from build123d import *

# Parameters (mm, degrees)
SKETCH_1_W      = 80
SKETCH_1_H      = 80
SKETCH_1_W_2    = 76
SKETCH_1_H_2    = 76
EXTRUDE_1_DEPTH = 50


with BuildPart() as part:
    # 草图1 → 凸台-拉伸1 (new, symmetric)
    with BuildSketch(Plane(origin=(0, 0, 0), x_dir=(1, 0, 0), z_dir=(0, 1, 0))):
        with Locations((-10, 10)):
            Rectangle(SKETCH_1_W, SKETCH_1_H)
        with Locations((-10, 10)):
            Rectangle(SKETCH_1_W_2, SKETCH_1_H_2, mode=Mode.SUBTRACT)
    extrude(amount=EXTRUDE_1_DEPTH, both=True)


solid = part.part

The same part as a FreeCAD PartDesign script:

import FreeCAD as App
import Part
import Sketcher

V = App.Vector
Q = App.Units.Quantity

doc = App.newDocument("Part")
params = doc.addObject("Spreadsheet::Sheet", "Params")
for row, (alias, value) in enumerate([
    ("sketch1_width", "80 mm"),
    ("sketch1_width2", "76 mm"),
    ("pad1_length", "100 mm"),
], start=1):
    params.set(f"A{row}", alias)
    params.set(f"B{row}", "=" + value)
    params.setAlias(f"B{row}", alias)

body = doc.addObject("PartDesign::Body", "Body")

# Sketch on XZ plane
sketch1 = body.newObject("Sketcher::SketchObject", "Sketch")
sketch1.AttachmentSupport = (doc.getObject("XZ_Plane"), [""])
sketch1.MapMode = "FlatFace"
sketch1.addGeometry([
    Part.LineSegment(V(-50, -50, 0), V(-50, 30, 0)),  # 0
    Part.LineSegment(V(-50, 30, 0), V(30, 30, 0)),  # 1
    Part.LineSegment(V(30, 30, 0), V(30, -50, 0)),  # 2
    Part.LineSegment(V(30, -50, 0), V(-50, -50, 0)),  # 3
    Part.LineSegment(V(28, 28, 0), V(-48, 28, 0)),  # 4
    Part.LineSegment(V(-48, 28, 0), V(-48, -48, 0)),  # 5
    Part.LineSegment(V(-48, -48, 0), V(28, -48, 0)),  # 6
    Part.LineSegment(V(28, -48, 0), V(28, 28, 0)),  # 7
], False)
sketch1.addConstraint([
    Sketcher.Constraint("Coincident", 0, 2, 1, 1),
    Sketcher.Constraint("Coincident", 1, 2, 2, 1),
    Sketcher.Constraint("Coincident", 2, 2, 3, 1),
    Sketcher.Constraint("Coincident", 3, 2, 0, 1),
    Sketcher.Constraint("Coincident", 4, 2, 5, 1),
    Sketcher.Constraint("Coincident", 5, 2, 6, 1),
    Sketcher.Constraint("Coincident", 6, 2, 7, 1),
    Sketcher.Constraint("Coincident", 7, 2, 4, 1),
    Sketcher.Constraint("Vertical", 0),
    Sketcher.Constraint("Horizontal", 1),
    Sketcher.Constraint("Vertical", 2),
    Sketcher.Constraint("Horizontal", 3),
    Sketcher.Constraint("Horizontal", 4),
    Sketcher.Constraint("Vertical", 5),
    Sketcher.Constraint("Horizontal", 6),
    Sketcher.Constraint("Vertical", 7),
    Sketcher.Constraint("Equal", 3, 0),
    Sketcher.Constraint("Equal", 6, 5),
    Sketcher.Constraint("DistanceX", 1, 1, 1, 2, Q("80 mm")),
    Sketcher.Constraint("DistanceX", 4, 2, 4, 1, Q("76 mm")),
    Sketcher.Constraint("DistanceX", 0, 2, -1, 1, Q("50 mm")),
    Sketcher.Constraint("DistanceY", -1, 1, 0, 2, Q("30 mm")),
    Sketcher.Constraint("DistanceX", 4, 2, -1, 1, Q("48 mm")),
    Sketcher.Constraint("DistanceY", -1, 1, 4, 2, Q("28 mm")),
])
sketch1.setExpression("Constraints[18]", "Params.sketch1_width")
sketch1.setExpression("Constraints[19]", "Params.sketch1_width2")
pad1 = body.newObject("PartDesign::Pad", "Pad")
pad1.Profile = sketch1
pad1.setExpression("Length", "Params.pad1_length")
pad1.Midplane = True

doc.recompute()
